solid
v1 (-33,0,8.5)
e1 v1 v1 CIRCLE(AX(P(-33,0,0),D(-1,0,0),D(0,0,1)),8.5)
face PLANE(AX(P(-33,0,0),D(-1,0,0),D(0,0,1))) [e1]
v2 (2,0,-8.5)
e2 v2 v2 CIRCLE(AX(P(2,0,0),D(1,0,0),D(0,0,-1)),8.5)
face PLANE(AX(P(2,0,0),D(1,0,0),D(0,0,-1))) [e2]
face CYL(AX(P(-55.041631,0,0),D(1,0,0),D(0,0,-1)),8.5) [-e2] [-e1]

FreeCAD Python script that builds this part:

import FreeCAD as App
import Part
import Sketcher
from FreeCAD import Vector

doc = App.newDocument("Part")
body = doc.addObject("PartDesign::Body", "Body")

sketch1 = body.newObject("Sketcher::SketchObject", "Sketch")
sketch1.AttachmentSupport = (doc.getObject("YZ_Plane"), [""])
sketch1.MapMode = "FlatFace"
sketch1.addGeometry(Part.Circle(Vector(0, 0, 0), Vector(0, 0, 1), 8), False)
sketch1.addConstraint(Sketcher.Constraint("Coincident", 0, 3, -1, 1))
sketch1.addConstraint(Sketcher.Constraint("Diameter", 0, 17.0))
pad1 = body.newObject("PartDesign::Pad", "Pad")
pad1.Profile = sketch1
pad1.Length = 31
pad1.Reversed = True

sketch2 = body.newObject("Sketcher::SketchObject", "Sketch001")
sketch2.AttachmentSupport = (doc.getObject("YZ_Plane"), [""])
sketch2.MapMode = "FlatFace"
sketch2.addGeometry(Part.Circle(Vector(0, 0, 0), Vector(0, 0, 1), 8), False)
sketch2.addConstraint(Sketcher.Constraint("Coincident", 0, 3, -1, 1))
sketch2.addConstraint(Sketcher.Constraint("Diameter", 0, 17.0))
pad2 = body.newObject("PartDesign::Pad", "Pad001")
pad2.Profile = sketch2
pad2.Length = 2

sketch3 = body.newObject("Sketcher::SketchObject", "Sketch002")
sketch3.AttachmentSupport = (doc.getObject("YZ_Plane"), [""])
sketch3.MapMode = "FlatFace"
sketch3.AttachmentOffset = App.Placement(Vector(0, 0, -31), App.Rotation())
sketch3.addGeometry(Part.Circle(Vector(0, 0, 0), Vector(0, 0, 1), 8), False)
sketch3.addConstraint(Sketcher.Constraint("Coincident", 0, 3, -1, 1))
sketch3.addConstraint(Sketcher.Constraint("Diameter", 0, 17.0))
pad3 = body.newObject("PartDesign::Pad", "Pad002")
pad3.Profile = sketch3
pad3.Length = 2
pad3.Reversed = True

doc.recompute()
